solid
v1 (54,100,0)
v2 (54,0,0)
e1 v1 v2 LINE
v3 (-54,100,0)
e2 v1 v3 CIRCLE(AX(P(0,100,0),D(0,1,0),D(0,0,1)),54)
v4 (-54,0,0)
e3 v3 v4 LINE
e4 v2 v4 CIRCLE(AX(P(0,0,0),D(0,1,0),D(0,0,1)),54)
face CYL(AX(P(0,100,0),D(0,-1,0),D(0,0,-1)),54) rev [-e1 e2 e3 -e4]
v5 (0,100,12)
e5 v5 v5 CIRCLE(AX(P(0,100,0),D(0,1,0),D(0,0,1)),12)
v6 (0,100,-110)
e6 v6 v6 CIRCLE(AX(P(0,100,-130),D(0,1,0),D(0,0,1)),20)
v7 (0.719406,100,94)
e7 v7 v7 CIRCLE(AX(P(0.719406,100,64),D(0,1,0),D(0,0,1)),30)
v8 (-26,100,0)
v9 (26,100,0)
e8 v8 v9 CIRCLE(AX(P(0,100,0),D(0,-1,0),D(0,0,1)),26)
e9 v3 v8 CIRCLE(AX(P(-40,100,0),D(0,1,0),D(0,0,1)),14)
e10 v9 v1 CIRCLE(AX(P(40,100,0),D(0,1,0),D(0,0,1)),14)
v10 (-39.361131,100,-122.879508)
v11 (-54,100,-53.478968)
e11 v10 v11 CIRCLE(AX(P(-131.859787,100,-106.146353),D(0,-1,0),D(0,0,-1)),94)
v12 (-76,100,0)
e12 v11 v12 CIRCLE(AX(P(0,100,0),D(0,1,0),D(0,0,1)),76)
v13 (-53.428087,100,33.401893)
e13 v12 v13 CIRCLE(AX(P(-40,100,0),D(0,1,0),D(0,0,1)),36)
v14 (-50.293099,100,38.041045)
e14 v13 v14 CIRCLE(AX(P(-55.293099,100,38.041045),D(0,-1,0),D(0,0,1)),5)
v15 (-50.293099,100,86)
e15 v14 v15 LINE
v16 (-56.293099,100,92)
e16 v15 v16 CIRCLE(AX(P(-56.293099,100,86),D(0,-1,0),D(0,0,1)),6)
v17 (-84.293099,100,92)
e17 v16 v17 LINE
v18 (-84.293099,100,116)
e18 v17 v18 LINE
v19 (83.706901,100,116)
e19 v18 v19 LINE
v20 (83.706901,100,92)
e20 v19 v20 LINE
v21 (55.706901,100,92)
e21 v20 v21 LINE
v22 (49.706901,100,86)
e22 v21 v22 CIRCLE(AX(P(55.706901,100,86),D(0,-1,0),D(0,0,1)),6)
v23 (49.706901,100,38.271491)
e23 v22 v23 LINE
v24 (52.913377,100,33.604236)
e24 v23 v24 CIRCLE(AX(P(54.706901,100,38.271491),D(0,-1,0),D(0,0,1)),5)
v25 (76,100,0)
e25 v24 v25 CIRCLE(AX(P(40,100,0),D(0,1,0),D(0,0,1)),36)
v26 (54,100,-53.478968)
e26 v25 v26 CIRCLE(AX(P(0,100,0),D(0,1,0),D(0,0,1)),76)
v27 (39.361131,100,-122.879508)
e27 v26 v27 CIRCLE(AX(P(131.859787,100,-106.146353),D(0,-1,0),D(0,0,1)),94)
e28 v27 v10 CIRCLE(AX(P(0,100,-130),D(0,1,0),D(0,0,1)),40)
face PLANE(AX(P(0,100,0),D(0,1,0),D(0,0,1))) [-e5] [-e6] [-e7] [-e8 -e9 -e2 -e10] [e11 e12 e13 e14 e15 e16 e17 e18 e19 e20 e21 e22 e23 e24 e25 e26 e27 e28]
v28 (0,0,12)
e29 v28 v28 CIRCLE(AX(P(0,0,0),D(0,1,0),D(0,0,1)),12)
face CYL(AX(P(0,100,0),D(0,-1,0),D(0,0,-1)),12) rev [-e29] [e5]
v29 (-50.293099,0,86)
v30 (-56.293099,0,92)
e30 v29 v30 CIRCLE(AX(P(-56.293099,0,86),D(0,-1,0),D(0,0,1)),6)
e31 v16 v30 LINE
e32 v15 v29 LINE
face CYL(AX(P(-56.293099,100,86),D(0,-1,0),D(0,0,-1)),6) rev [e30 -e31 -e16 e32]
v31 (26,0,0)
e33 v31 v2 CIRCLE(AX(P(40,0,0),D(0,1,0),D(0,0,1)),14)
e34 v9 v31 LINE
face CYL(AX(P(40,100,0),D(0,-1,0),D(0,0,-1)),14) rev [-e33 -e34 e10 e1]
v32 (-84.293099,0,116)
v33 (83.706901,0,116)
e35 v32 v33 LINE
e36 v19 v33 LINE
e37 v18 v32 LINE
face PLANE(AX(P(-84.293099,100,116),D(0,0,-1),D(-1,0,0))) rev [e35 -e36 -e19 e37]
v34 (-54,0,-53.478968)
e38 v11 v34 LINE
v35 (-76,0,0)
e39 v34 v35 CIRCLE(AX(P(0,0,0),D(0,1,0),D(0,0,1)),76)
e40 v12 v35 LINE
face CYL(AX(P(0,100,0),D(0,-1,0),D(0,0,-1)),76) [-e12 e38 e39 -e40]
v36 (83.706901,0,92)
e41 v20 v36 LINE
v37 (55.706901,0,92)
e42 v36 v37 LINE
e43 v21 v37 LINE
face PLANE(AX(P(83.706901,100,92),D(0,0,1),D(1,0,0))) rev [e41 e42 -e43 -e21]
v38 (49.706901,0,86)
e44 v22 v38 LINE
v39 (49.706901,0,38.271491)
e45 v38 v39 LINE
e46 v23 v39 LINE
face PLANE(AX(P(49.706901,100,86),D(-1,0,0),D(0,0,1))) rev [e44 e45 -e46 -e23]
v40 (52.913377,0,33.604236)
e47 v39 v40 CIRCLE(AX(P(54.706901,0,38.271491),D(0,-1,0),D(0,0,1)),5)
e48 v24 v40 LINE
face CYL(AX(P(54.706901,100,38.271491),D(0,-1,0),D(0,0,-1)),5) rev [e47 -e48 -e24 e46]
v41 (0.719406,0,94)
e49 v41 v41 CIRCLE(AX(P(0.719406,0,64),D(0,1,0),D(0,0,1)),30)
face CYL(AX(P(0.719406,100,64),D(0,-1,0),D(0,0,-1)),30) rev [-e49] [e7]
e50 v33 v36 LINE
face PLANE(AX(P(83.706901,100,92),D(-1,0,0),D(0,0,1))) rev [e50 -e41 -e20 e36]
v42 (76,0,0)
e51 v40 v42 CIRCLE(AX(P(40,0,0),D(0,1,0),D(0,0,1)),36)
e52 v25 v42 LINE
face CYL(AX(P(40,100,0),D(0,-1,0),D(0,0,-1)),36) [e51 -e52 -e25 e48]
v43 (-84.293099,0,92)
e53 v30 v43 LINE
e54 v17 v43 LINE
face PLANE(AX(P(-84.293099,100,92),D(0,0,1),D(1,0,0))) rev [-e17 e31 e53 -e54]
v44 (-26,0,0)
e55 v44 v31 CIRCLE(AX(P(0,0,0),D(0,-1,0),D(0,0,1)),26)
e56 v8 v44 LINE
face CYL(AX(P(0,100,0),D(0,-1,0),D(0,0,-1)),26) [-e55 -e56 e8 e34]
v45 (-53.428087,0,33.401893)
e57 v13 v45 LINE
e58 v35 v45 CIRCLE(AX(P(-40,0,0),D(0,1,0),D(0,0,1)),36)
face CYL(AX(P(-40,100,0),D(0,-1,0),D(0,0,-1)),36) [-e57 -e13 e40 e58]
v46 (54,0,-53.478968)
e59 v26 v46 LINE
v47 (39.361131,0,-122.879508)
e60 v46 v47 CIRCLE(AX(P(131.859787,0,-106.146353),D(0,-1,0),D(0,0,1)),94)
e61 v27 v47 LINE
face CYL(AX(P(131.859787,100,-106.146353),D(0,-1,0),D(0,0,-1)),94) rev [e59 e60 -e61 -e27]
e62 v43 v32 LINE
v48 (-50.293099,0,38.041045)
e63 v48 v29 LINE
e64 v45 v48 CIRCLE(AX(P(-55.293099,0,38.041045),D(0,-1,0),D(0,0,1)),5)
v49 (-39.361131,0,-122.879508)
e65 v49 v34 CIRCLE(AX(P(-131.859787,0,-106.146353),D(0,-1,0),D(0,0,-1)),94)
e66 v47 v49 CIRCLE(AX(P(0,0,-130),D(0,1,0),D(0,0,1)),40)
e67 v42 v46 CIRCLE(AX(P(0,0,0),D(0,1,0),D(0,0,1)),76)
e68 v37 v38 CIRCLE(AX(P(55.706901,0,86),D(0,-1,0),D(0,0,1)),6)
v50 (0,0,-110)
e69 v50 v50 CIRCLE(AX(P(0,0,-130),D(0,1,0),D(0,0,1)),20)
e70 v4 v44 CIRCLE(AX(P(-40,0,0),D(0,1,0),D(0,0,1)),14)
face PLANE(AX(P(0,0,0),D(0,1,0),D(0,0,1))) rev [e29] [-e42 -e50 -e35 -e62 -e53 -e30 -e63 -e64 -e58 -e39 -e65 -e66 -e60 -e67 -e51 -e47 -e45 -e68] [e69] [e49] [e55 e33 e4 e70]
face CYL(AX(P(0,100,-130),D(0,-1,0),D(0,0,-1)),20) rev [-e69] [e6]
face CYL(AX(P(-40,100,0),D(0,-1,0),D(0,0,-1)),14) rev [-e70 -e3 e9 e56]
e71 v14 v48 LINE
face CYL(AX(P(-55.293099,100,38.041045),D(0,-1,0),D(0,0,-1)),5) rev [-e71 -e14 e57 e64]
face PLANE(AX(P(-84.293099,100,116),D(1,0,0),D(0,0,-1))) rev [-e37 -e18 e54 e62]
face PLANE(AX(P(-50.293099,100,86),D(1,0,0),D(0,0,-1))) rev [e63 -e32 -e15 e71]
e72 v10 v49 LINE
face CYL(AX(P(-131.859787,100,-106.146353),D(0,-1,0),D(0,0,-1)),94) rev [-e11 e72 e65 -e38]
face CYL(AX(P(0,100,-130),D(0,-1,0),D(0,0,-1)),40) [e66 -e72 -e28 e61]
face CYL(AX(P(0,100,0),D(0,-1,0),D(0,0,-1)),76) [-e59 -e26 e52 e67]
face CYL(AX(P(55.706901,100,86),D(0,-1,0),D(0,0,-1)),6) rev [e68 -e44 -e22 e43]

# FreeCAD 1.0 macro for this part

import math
import FreeCAD as App
import Part
import Sketcher
Q = App.Units.Quantity

doc = App.newDocument("Part")
body = doc.addObject("PartDesign::Body", "Body")

# Sketch on XZ plane
sketch1 = body.newObject("Sketcher::SketchObject", "Sketch")
sketch1.AttachmentSupport = (doc.getObject("XZ_Plane"), [""])
sketch1.MapMode = "FlatFace"
sketch1.addGeometry(Part.LineSegment(App.Vector(-84.293099, 116, 0), App.Vector(83.706901, 116, 0)), False)
sketch1.addGeometry(Part.LineSegment(App.Vector(83.706901, 116, 0), App.Vector(83.706901, 92, 0)), False)
sketch1.addGeometry(Part.LineSegment(App.Vector(83.706901, 92, 0), App.Vector(55.706901, 92, 0)), False)
sketch1.addGeometry(Part.ArcOfCircle(Part.Circle(App.Vector(55.706901, 86, 0), App.Vector(0, 0, 1), 6), math.radians(90), math.radians(180)), False)
sketch1.addGeometry(Part.LineSegment(App.Vector(49.706901, 86, 0), App.Vector(49.706901, 38.271491, 0)), False)
sketch1.addGeometry(Part.ArcOfCircle(Part.Circle(App.Vector(54.706901, 38.271491, 0), App.Vector(0, 0, 1), 5), math.radians(180), math.radians(248.979319)), False)
sketch1.addGeometry(Part.ArcOfCircle(Part.Circle(App.Vector(40, 0, 0), App.Vector(0, 0, 1), 36), math.radians(0), math.radians(68.979319)), False)
sketch1.addGeometry(Part.ArcOfCircle(Part.Circle(App.Vector(0, 0, 0), App.Vector(0, 0, 1), 76), math.radians(-44.722246), math.radians(0)), False)
sketch1.addGeometry(Part.ArcOfCircle(Part.Circle(App.Vector(131.859787, -106.146353, 0), App.Vector(0, 0, 1), 94), math.radians(145.924052), math.radians(190.254003)), False)
sketch1.addGeometry(Part.ArcOfCircle(Part.Circle(App.Vector(0, -130, 0), App.Vector(0, 0, 1), 40), math.radians(169.745997), math.radians(370.254003)), False)
sketch1.addGeometry(Part.ArcOfCircle(Part.Circle(App.Vector(-131.859787, -106.146353, 0), App.Vector(0, 0, 1), 94), math.radians(-10.254003), math.radians(34.075948)), False)
sketch1.addGeometry(Part.ArcOfCircle(Part.Circle(App.Vector(0, 0, 0), App.Vector(0, 0, 1), 76), math.radians(180), math.radians(224.722246)), False)
sketch1.addGeometry(Part.ArcOfCircle(Part.Circle(App.Vector(-40, 0, 0), App.Vector(0, 0, 1), 36), math.radians(111.900903), math.radians(180)), False)
sketch1.addGeometry(Part.ArcOfCircle(Part.Circle(App.Vector(-55.293099, 38.041045, 0), App.Vector(0, 0, 1), 5), math.radians(-68.099097), math.radians(0)), False)
sketch1.addGeometry(Part.LineSegment(App.Vector(-50.293099, 38.041045, 0), App.Vector(-50.293099, 86, 0)), False)
sketch1.addGeometry(Part.ArcOfCircle(Part.Circle(App.Vector(-56.293099, 86, 0), App.Vector(0, 0, 1), 6), math.radians(0), math.radians(90)), False)
sketch1.addGeometry(Part.LineSegment(App.Vector(-56.293099, 92, 0), App.Vector(-84.293099, 92, 0)), False)
sketch1.addGeometry(Part.LineSegment(App.Vector(-84.293099, 92, 0), App.Vector(-84.293099, 116, 0)), False)
sketch1.addGeometry(Part.Circle(App.Vector(0.719406, 64, 0), App.Vector(0, 0, 1), 30), False)
sketch1.addGeometry(Part.Circle(App.Vector(0, 0, 0), App.Vector(0, 0, 1), 12), False)
sketch1.addGeometry(Part.ArcOfCircle(Part.Circle(App.Vector(-40, 0, 0), App.Vector(0, 0, 1), 14), math.radians(0), math.radians(180)), False)
sketch1.addGeometry(Part.ArcOfCircle(Part.Circle(App.Vector(0, 0, 0), App.Vector(0, 0, 1), 54), math.radians(180), math.radians(360)), False)
sketch1.addGeometry(Part.ArcOfCircle(Part.Circle(App.Vector(40, 0, 0), App.Vector(0, 0, 1), 14), math.radians(0), math.radians(180)), False)
sketch1.addGeometry(Part.ArcOfCircle(Part.Circle(App.Vector(0, 0, 0), App.Vector(0, 0, 1), 26), math.radians(180), math.radians(360)), False)
sketch1.addGeometry(Part.Circle(App.Vector(0, -130, 0), App.Vector(0, 0, 1), 20), False)
sketch1.addConstraint(Sketcher.Constraint("Coincident", 0, 2, 1, 1))
sketch1.addConstraint(Sketcher.Constraint("Coincident", 1, 2, 2, 1))
sketch1.addConstraint(Sketcher.Constraint("Tangent", 2, 2, 3, 1))
sketch1.addConstraint(Sketcher.Constraint("Tangent", 3, 2, 4, 1))
sketch1.addConstraint(Sketcher.Constraint("Tangent", 4, 2, 5, 1))
sketch1.addConstraint(Sketcher.Constraint("Tangent", 5, 2, 6, 2))
sketch1.addConstraint(Sketcher.Constraint("Tangent", 6, 1, 7, 2))
sketch1.addConstraint(Sketcher.Constraint("Coincident", 7, 1, 8, 1))
sketch1.addConstraint(Sketcher.Constraint("Tangent", 8, 2, 9, 2))
sketch1.addConstraint(Sketcher.Constraint("Tangent", 9, 1, 10, 1))
sketch1.addConstraint(Sketcher.Constraint("Coincident", 10, 2, 11, 2))
sketch1.addConstraint(Sketcher.Constraint("Tangent", 11, 1, 12, 2))
sketch1.addConstraint(Sketcher.Constraint("Tangent", 12, 1, 13, 1))
sketch1.addConstraint(Sketcher.Constraint("Tangent", 13, 2, 14, 1))
sketch1.addConstraint(Sketcher.Constraint("Tangent", 14, 2, 15, 1))
sketch1.addConstraint(Sketcher.Constraint("Tangent", 15, 2, 16, 1))
sketch1.addConstraint(Sketcher.Constraint("Coincident", 16, 2, 17, 1))
sketch1.addConstraint(Sketcher.Constraint("Coincident", 17, 2, 0, 1))
sketch1.addConstraint(Sketcher.Constraint("Tangent", 20, 2, 21, 1))
sketch1.addConstraint(Sketcher.Constraint("Tangent", 21, 2, 22, 1))
sketch1.addConstraint(Sketcher.Constraint("Tangent", 22, 2, 23, 2))
sketch1.addConstraint(Sketcher.Constraint("Tangent", 23, 1, 20, 1))
sketch1.addConstraint(Sketcher.Constraint("Horizontal", 0))
sketch1.addConstraint(Sketcher.Constraint("Vertical", 1))
sketch1.addConstraint(Sketcher.Constraint("Horizontal", 2))
sketch1.addConstraint(Sketcher.Constraint("Vertical", 4))
sketch1.addConstraint(Sketcher.Constraint("Vertical", 14))
sketch1.addConstraint(Sketcher.Constraint("Horizontal", 16))
sketch1.addConstraint(Sketcher.Constraint("Vertical", 17))
sketch1.addConstraint(Sketcher.Constraint("Coincident", 7, 3, -1, 1))
sketch1.addConstraint(Sketcher.Constraint("Coincident", 11, 3, -1, 1))
sketch1.addConstraint(Sketcher.Constraint("Coincident", 19, 3, -1, 1))
sketch1.addConstraint(Sketcher.Constraint("Coincident", 21, 3, -1, 1))
sketch1.addConstraint(Sketcher.Constraint("Coincident", 23, 3, -1, 1))
sketch1.addConstraint(Sketcher.Constraint("Coincident", 20, 3, 12, 3))
sketch1.addConstraint(Sketcher.Constraint("Coincident", 22, 3, 6, 3))
sketch1.addConstraint(Sketcher.Constraint("Coincident", 24, 3, 9, 3))
sketch1.addConstraint(Sketcher.Constraint("Equal", 8, 10))
sketch1.addConstraint(Sketcher.Constraint("Equal", 7, 11))
sketch1.addConstraint(Sketcher.Constraint("Equal", 5, 13))
sketch1.addConstraint(Sketcher.Constraint("Equal", 3, 15))
sketch1.addConstraint(Sketcher.Constraint("Symmetric", 8, 3, 10, 3, -2))
sketch1.addConstraint(Sketcher.Constraint("PointOnObject", 6, 3, -1))
sketch1.addConstraint(Sketcher.Constraint("PointOnObject", 12, 3, -1))
sketch1.addConstraint(Sketcher.Constraint("Horizontal", 3, 3, 15, 3))
sketch1.addConstraint(Sketcher.Constraint("Vertical", 10, 2, 20, 2))
sketch1.addConstraint(Sketcher.Constraint("Equal", 2, 16))
sketch1.addConstraint(Sketcher.Constraint("Diameter", 18, Q("60 mm")))
sketch1.addConstraint(Sketcher.Constraint("Diameter", 19, Q("24 mm")))
sketch1.addConstraint(Sketcher.Constraint("Diameter", 24, Q("40 mm")))
sketch1.addConstraint(Sketcher.Constraint("Radius", 3, Q("6 mm")))
sketch1.addConstraint(Sketcher.Constraint("Radius", 5, Q("5 mm")))
sketch1.addConstraint(Sketcher.Constraint("Radius", 6, Q("36 mm")))
sketch1.addConstraint(Sketcher.Constraint("Radius", 7, Q("76 mm")))
sketch1.addConstraint(Sketcher.Constraint("Radius", 8, Q("94 mm")))
sketch1.addConstraint(Sketcher.Constraint("Radius", 9, Q("40 mm")))
sketch1.addConstraint(Sketcher.Constraint("Radius", 20, Q("14 mm")))
sketch1.addConstraint(Sketcher.Constraint("DistanceX", 0, 1, 0, 2, Q("168 mm")))
sketch1.addConstraint(Sketcher.Constraint("DistanceX", 2, 2, 2, 1, Q("28 mm")))
sketch1.addConstraint(Sketcher.Constraint("DistanceY", 1, 2, 1, 1, Q("24 mm")))
sketch1.addConstraint(Sketcher.Constraint("DistanceY", -1, 1, 3, 3, Q("86 mm")))
sketch1.addConstraint(Sketcher.Constraint("DistanceY", 9, 3, -1, 1, Q("130 mm")))
sketch1.addConstraint(Sketcher.Constraint("DistanceY", -1, 1, 18, 3, Q("64 mm")))
sketch1.addConstraint(Sketcher.Constraint("DistanceY", 4, 2, 4, 1, Q("47.728509 mm")))
sketch1.addConstraint(Sketcher.Constraint("DistanceX", -1, 1, 18, 3, Q("0.719406 mm")))
pad1 = body.newObject("PartDesign::Pad", "Pad")
pad1.Profile = sketch1
pad1.Length = 100
pad1.Reversed = True

doc.recompute()
